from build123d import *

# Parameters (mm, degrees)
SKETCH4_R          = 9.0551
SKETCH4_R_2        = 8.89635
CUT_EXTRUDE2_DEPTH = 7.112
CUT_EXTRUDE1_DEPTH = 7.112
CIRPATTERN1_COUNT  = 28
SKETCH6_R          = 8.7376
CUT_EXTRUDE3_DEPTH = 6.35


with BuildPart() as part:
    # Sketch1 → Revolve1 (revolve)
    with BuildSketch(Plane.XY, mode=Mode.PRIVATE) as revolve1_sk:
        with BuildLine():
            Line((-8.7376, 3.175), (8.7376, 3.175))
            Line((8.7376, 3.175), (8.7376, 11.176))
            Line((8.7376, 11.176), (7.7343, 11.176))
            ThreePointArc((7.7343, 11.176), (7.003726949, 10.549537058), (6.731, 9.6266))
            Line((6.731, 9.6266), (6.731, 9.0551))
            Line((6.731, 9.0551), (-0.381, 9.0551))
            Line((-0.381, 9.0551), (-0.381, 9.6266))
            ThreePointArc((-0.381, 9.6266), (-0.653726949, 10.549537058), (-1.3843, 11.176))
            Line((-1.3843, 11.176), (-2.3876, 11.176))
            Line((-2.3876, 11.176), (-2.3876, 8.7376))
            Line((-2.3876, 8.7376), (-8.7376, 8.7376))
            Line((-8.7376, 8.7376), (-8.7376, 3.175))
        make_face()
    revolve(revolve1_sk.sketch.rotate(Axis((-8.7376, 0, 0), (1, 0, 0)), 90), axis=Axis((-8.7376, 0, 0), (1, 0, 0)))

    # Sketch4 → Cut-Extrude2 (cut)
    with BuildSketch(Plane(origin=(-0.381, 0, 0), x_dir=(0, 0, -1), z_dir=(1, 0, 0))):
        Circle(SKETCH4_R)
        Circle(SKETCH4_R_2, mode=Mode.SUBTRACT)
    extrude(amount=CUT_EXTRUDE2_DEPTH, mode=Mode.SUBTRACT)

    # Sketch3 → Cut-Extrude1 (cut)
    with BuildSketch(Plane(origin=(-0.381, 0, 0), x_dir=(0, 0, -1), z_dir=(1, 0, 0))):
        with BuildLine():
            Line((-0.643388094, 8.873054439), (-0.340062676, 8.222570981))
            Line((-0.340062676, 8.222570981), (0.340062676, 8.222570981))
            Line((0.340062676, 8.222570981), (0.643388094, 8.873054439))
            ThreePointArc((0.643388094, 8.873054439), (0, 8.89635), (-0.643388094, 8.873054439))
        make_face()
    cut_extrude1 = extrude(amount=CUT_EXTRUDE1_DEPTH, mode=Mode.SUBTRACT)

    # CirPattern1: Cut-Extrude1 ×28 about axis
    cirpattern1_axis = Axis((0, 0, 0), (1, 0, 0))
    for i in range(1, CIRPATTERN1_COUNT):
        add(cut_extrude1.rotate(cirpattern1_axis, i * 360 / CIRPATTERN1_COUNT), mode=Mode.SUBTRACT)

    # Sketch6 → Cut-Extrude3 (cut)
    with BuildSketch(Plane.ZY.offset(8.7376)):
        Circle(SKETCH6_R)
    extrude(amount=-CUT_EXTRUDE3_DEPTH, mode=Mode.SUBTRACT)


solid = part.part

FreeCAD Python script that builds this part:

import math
import FreeCAD as App
import Part
import Sketcher

V = App.Vector
Q = App.Units.Quantity

doc = App.newDocument("Part")
body = doc.addObject("PartDesign::Body", "Body")

# Sketch on XY plane
sketch1 = body.newObject("Sketcher::SketchObject", "Sketch")
sketch1.AttachmentSupport = (doc.getObject("XY_Plane"), [""])
sketch1.MapMode = "FlatFace"
sketch1.addGeometry([
    Part.LineSegment(V(-8.7, 3.2, 0), V(8.7, 3.2, 0)),  # 0
    Part.LineSegment(V(8.7, 3.2, 0), V(8.7, 11.2, 0)),  # 1
    Part.LineSegment(V(8.7, 11.2, 0), V(7.7, 11.2, 0)),  # 2
    Part.ArcOfCircle(Part.Circle(V(8.4, 9.6, 0), V(0, 0, 1), 1.7), math.radians(114), math.radians(180)),  # 3
    Part.LineSegment(V(6.7, 9.6, 0), V(6.7, 9.1, 0)),  # 4
    Part.LineSegment(V(6.7, 9.1, 0), V(-0.4, 9.1, 0)),  # 5
    Part.LineSegment(V(-0.4, 9.1, 0), V(-0.4, 9.6, 0)),  # 6
    Part.ArcOfCircle(Part.Circle(V(-2.1, 9.6, 0), V(0, 0, 1), 1.7), math.radians(0), math.radians(66)),  # 7
    Part.LineSegment(V(-1.4, 11.2, 0), V(-2.4, 11.2, 0)),  # 8
    Part.LineSegment(V(-2.4, 11.2, 0), V(-2.4, 8.7, 0)),  # 9
    Part.LineSegment(V(-2.4, 8.7, 0), V(-8.7, 8.7, 0)),  # 10
    Part.LineSegment(V(-8.7, 8.7, 0), V(-8.7, 3.2, 0)),  # 11
], False)
sketch1.addConstraint([
    Sketcher.Constraint("Coincident", 0, 2, 1, 1),
    Sketcher.Constraint("Coincident", 1, 2, 2, 1),
    Sketcher.Constraint("Coincident", 2, 2, 3, 1),
    Sketcher.Constraint("Tangent", 3, 2, 4, 1),
    Sketcher.Constraint("Coincident", 4, 2, 5, 1),
    Sketcher.Constraint("Coincident", 5, 2, 6, 1),
    Sketcher.Constraint("Tangent", 6, 2, 7, 1),
    Sketcher.Constraint("Coincident", 7, 2, 8, 1),
    Sketcher.Constraint("Coincident", 8, 2, 9, 1),
    Sketcher.Constraint("Coincident", 9, 2, 10, 1),
    Sketcher.Constraint("Coincident", 10, 2, 11, 1),
    Sketcher.Constraint("Coincident", 11, 2, 0, 1),
    Sketcher.Constraint("Horizontal", 0),
    Sketcher.Constraint("Vertical", 1),
    Sketcher.Constraint("Horizontal", 2),
    Sketcher.Constraint("Vertical", 4),
    Sketcher.Constraint("Horizontal", 5),
    Sketcher.Constraint("Vertical", 6),
    Sketcher.Constraint("Horizontal", 8),
    Sketcher.Constraint("Vertical", 9),
    Sketcher.Constraint("Horizontal", 10),
    Sketcher.Constraint("Vertical", 11),
    Sketcher.Constraint("Equal", 3, 7),
    Sketcher.Constraint("Horizontal", 3, 3, 7, 3),
    Sketcher.Constraint("Horizontal", 2, 2, 7, 2),
    Sketcher.Constraint("Equal", 2, 8),
    Sketcher.Constraint("DistanceX", 5, 2, 5, 1, Q("0.28 in")),
    Sketcher.Constraint("DistanceX", 10, 2, 10, 1, Q("0.25 in")),
    Sketcher.Constraint("DistanceX", 0, 1, 0, 2, Q("0.688 in")),
    Sketcher.Constraint("DistanceY", 1, 1, 1, 2, Q("0.315 in")),
    Sketcher.Constraint("DistanceY", 9, 2, 9, 1, Q("0.096 in")),
    Sketcher.Constraint("DistanceY", -1, 1, 1, 2, Q("0.44 in")),
    Sketcher.Constraint("DistanceX", 2, 2, 2, 1, Q("0.0395 in")),
    Sketcher.Constraint("DistanceY", 4, 2, 4, 1, Q("0.0225 in")),
    Sketcher.Constraint("DistanceY", -1, 1, 3, 3, Q("0.379 in")),
    Sketcher.Constraint("DistanceX", -1, 1, 0, 2, Q("0.344 in")),
])
revolution = body.newObject("PartDesign::Revolution", "Revolution")
revolution.Profile = sketch1
revolution.ReferenceAxis = (sketch1, ["H_Axis"])
revolution.Angle = 360

# Sketch on YZ plane
sketch2 = body.newObject("Sketcher::SketchObject", "Sketch001")
sketch2.AttachmentSupport = (doc.getObject("YZ_Plane"), [""])
sketch2.MapMode = "FlatFace"
sketch2.AttachmentOffset = App.Placement(V(0, 0, -0.015 * 25.4), App.Rotation())
sketch2.addGeometry([
    Part.Circle(V(0, 0, 0), V(0, 0, 1), 9),
    Part.Circle(V(0, 0, 0), V(0, 0, 1), 9),
], False)
sketch2.addConstraint([
    Sketcher.Constraint("Coincident", 0, 3, -1, 1),
    Sketcher.Constraint("Coincident", 1, 3, -1, 1),
    Sketcher.Constraint("Diameter", 0, Q("0.713 in")),
    Sketcher.Constraint("Diameter", 1, Q("0.7005 in")),
])
pocket1 = body.newObject("PartDesign::Pocket", "Pocket")
pocket1.Profile = sketch2
pocket1.Length = Q("0.28 in")
pocket1.Reversed = True

# Sketch on YZ plane
sketch3 = body.newObject("Sketcher::SketchObject", "Sketch002")
sketch3.AttachmentSupport = (doc.getObject("YZ_Plane"), [""])
sketch3.MapMode = "FlatFace"
sketch3.AttachmentOffset = App.Placement(V(0, 0, -0.015 * 25.4), App.Rotation())
sketch3.addGeometry([
    Part.LineSegment(V(8.9, 0.6, 0), V(8.2, 0.3, 0)),
    Part.LineSegment(V(8.2, 0.3, 0), V(8.2, -0.3, 0)),
    Part.LineSegment(V(8.2, -0.3, 0), V(8.9, -0.6, 0)),
    Part.ArcOfCircle(Part.Circle(V(0, 0, 0), V(0, 0, 1), 8.9), math.radians(-4.15), math.radians(4.15)),
], False)
sketch3.addConstraint([
    Sketcher.Constraint("Coincident", 0, 2, 1, 1),
    Sketcher.Constraint("Coincident", 1, 2, 2, 1),
    Sketcher.Constraint("Coincident", 2, 2, 3, 1),
    Sketcher.Constraint("Coincident", 3, 2, 0, 1),
    Sketcher.Constraint("Vertical", 1),
    Sketcher.Constraint("Coincident", 3, 3, -1, 1),
    Sketcher.Constraint("Vertical", 2, 2, 3, 2),
    Sketcher.Constraint("Equal", 0, 2),
    Sketcher.Constraint("Angle", 0, Q("-155 deg")),
    Sketcher.Constraint("Radius", 3, 8.89635),
    Sketcher.Constraint("Distance", 0, 0.717729),
    Sketcher.Constraint("DistanceY", 1, 2, 1, 1, 0.680125),
])
pocket2 = body.newObject("PartDesign::Pocket", "Pocket001")
pocket2.Profile = sketch3
pocket2.Length = Q("0.28 in")
pocket2.Reversed = True
doc.recompute()

polarpattern = body.newObject("PartDesign::PolarPattern", "PolarPattern")
polarpattern.Originals = [pocket2]
polarpattern.Axis = (doc.getObject("X_Axis"), [""])
polarpattern.Angle = 360
polarpattern.Occurrences = 28
body.Tip = polarpattern

# Sketch on YZ plane
sketch4 = body.newObject("Sketcher::SketchObject", "Sketch003")
sketch4.AttachmentSupport = (doc.getObject("YZ_Plane"), [""])
sketch4.MapMode = "FlatFace"
sketch4.AttachmentOffset = App.Placement(V(0, 0, -0.344 * 25.4), App.Rotation())
sketch4.addGeometry(Part.Circle(V(0, 0, 0), V(0, 0, 1), 9), False)
sketch4.addConstraint([
    Sketcher.Constraint("Coincident", 0, 3, -1, 1),
    Sketcher.Constraint("Diameter", 0, Q("0.688 in")),
])
pocket3 = body.newObject("PartDesign::Pocket", "Pocket002")
pocket3.Profile = sketch4
pocket3.Length = Q("0.25 in")
pocket3.Reversed = True

doc.recompute()
